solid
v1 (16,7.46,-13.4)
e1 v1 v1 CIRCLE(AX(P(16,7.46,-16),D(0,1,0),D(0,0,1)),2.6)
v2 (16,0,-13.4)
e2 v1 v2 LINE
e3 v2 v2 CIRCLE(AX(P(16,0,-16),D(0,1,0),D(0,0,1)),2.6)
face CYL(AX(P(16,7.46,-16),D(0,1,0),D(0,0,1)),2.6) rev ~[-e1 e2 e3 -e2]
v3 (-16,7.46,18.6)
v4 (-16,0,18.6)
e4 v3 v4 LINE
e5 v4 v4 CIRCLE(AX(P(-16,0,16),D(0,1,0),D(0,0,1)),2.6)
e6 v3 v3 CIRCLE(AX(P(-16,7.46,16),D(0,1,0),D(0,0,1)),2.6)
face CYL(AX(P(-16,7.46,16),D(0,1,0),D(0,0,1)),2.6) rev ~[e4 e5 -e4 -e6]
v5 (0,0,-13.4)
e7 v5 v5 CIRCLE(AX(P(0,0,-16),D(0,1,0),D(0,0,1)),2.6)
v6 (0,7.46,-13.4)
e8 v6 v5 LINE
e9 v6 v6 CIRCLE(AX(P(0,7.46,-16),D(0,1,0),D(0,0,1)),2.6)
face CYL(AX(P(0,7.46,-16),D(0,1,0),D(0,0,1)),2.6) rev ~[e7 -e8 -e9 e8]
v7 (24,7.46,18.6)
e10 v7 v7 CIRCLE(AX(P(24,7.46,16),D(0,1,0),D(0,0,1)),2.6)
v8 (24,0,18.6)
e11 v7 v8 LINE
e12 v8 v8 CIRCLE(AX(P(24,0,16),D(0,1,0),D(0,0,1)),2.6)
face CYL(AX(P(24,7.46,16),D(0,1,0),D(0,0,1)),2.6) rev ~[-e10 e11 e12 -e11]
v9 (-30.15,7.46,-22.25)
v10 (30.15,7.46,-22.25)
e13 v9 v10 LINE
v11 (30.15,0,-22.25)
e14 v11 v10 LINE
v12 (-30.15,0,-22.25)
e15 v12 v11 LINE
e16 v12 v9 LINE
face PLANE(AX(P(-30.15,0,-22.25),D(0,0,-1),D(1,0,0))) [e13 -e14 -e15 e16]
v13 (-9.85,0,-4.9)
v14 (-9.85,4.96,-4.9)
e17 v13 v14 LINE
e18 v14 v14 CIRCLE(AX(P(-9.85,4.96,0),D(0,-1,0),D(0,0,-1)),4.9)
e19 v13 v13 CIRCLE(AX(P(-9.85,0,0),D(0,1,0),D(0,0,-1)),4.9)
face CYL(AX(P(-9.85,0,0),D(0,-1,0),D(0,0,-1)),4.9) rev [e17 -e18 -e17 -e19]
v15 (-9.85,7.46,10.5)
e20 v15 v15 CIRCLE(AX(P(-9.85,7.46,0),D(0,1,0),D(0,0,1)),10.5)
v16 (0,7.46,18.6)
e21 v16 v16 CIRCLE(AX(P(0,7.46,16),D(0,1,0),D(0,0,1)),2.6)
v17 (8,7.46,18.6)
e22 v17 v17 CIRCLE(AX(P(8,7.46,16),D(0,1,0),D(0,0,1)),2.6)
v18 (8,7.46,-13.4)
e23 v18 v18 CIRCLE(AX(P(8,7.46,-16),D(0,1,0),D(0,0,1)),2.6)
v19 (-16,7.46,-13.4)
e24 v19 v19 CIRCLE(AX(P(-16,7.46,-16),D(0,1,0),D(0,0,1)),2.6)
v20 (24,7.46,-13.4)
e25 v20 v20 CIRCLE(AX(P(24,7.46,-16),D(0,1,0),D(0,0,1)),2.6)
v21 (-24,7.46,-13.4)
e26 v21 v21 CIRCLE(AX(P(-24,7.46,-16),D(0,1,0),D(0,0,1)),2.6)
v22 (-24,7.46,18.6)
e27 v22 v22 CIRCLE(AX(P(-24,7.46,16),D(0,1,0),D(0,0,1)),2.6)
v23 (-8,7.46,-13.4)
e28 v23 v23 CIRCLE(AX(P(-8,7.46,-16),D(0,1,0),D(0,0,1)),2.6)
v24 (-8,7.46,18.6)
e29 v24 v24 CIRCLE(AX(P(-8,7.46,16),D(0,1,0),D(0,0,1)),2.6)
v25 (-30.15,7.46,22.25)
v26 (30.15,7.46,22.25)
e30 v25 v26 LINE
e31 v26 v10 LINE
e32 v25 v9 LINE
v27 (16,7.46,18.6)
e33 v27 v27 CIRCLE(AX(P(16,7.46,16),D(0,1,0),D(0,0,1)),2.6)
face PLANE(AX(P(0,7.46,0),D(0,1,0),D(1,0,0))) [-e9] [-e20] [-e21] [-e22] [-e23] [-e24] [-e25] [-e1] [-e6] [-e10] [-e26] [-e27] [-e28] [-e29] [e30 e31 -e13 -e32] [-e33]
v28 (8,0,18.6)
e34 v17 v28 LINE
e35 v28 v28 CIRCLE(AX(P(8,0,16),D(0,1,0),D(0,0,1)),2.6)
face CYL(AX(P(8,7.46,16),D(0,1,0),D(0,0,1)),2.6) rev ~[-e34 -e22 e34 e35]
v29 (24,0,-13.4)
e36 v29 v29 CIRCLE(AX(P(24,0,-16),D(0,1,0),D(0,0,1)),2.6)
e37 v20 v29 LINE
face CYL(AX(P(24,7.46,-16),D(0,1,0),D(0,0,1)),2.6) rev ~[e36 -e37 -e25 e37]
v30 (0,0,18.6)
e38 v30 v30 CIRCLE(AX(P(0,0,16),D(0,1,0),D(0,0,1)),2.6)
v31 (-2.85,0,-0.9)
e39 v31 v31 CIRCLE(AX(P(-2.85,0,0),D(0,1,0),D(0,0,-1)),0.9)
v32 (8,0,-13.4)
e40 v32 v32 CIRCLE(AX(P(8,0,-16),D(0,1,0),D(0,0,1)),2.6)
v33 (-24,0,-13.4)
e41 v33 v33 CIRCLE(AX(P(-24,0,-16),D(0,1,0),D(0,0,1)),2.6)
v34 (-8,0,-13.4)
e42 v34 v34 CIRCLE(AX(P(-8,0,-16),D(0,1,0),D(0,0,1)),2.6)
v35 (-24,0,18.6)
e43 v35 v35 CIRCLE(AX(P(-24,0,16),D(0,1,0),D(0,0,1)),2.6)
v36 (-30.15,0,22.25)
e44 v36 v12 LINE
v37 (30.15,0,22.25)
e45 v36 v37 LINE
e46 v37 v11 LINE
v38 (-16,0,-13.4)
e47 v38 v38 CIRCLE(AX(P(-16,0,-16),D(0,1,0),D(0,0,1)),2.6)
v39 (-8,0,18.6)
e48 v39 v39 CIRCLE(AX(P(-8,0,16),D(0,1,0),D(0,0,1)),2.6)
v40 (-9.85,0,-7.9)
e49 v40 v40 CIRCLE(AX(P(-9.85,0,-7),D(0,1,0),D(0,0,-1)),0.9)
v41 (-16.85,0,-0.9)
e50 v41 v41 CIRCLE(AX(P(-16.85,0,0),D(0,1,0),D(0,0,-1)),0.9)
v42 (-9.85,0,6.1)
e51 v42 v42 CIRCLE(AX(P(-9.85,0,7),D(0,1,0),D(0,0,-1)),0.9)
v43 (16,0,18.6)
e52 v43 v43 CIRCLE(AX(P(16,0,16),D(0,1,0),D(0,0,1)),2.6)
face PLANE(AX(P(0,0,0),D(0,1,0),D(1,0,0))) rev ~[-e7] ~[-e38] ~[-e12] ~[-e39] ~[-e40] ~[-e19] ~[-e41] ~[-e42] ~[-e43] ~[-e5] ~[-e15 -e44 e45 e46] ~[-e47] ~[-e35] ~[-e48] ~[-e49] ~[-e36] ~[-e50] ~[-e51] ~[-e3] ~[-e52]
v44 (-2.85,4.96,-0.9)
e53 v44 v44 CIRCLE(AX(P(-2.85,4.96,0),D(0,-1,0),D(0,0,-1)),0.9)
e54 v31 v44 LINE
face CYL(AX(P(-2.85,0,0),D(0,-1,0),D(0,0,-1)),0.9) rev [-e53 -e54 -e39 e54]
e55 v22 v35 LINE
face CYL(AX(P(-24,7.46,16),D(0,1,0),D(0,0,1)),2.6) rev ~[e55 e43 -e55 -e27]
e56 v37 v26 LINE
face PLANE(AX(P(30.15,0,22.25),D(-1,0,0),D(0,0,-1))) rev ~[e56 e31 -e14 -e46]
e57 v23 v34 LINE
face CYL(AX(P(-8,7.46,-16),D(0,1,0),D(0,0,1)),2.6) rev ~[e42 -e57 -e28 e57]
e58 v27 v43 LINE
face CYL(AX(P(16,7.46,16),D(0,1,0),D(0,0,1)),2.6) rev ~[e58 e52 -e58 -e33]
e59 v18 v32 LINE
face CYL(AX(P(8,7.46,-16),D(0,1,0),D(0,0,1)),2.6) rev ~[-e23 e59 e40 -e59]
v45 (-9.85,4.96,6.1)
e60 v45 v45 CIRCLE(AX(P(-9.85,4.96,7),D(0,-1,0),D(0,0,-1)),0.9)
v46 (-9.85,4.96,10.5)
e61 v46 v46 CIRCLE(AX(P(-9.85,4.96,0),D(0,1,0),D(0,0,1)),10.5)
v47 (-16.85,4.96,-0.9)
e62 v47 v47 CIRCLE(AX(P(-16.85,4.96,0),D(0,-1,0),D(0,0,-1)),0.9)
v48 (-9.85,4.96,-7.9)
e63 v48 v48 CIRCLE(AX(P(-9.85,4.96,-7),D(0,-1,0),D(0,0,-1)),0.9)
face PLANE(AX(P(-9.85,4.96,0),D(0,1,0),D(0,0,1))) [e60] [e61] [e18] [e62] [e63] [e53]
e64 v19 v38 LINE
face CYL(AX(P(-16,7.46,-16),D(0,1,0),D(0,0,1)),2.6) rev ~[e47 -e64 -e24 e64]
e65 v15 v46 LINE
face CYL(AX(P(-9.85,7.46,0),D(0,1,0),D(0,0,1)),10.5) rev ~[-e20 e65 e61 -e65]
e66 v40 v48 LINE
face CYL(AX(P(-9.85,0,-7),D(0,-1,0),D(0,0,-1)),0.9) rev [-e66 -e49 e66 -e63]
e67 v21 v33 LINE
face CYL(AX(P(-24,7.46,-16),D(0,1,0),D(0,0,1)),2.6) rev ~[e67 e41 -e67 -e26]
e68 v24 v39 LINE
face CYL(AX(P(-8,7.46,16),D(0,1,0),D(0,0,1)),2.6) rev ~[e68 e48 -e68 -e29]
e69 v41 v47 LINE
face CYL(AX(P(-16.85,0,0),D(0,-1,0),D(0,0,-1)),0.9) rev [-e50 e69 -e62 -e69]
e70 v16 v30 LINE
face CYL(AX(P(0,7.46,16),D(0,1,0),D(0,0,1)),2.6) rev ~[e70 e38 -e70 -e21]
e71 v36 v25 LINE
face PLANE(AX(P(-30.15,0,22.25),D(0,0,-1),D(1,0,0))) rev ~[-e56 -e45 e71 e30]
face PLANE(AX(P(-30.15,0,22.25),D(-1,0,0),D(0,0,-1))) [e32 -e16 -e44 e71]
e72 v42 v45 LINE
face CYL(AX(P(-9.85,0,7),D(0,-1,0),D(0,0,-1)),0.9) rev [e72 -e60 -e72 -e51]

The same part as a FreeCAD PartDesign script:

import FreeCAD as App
import Part
import Sketcher
from FreeCAD import Vector


def add_polygon(sketch, points):
    """Adds a closed chain of lines whose ends are joined by coincident constraints."""
    first, n = sketch.GeometryCount, len(points)
    for a, b in zip(points, points[1:] + points[:1]):
        sketch.addGeometry(Part.LineSegment(App.Vector(*a, 0), App.Vector(*b, 0)), False)
    for i in range(n):
        sketch.addConstraint(Sketcher.Constraint("Coincident", first + i, 2, first + (i + 1) % n, 1))

doc = App.newDocument("Part")
body = doc.addObject("PartDesign::Body", "Body")

sketch1 = body.newObject("Sketcher::SketchObject", "Sketch")
sketch1.AttachmentSupport = (doc.getObject("XZ_Plane"), [""])
sketch1.MapMode = "FlatFace"
add_polygon(sketch1, [(-30.1, -22.2), (-30.1, 22.2), (30.1, 22.2), (30.1, -22.2)])
sketch1.addGeometry(Part.Circle(Vector(-9.8, 7, 0), Vector(0, 0, 1), 0.9), False)
sketch1.addGeometry(Part.Circle(Vector(-16.9, 0, 0), Vector(0, 0, 1), 0.9), False)
sketch1.addGeometry(Part.Circle(Vector(-9.8, 0, 0), Vector(0, 0, 1), 4.9), False)
sketch1.addGeometry(Part.Circle(Vector(-2.9, 0, 0), Vector(0, 0, 1), 0.9), False)
sketch1.addGeometry(Part.Circle(Vector(-9.8, -7, 0), Vector(0, 0, 1), 0.9), False)
sketch1.addConstraint(Sketcher.Constraint("Vertical", 0))
sketch1.addConstraint(Sketcher.Constraint("Horizontal", 1))
sketch1.addConstraint(Sketcher.Constraint("Vertical", 2))
sketch1.addConstraint(Sketcher.Constraint("Horizontal", 3))
sketch1.addConstraint(Sketcher.Constraint("Equal", 4, 5))
sketch1.addConstraint(Sketcher.Constraint("Equal", 5, 7))
sketch1.addConstraint(Sketcher.Constraint("Equal", 7, 8))
sketch1.addConstraint(Sketcher.Constraint("Symmetric", 0, 2, 2, 2, -1, 1))
sketch1.addConstraint(Sketcher.Constraint("Symmetric", 4, 3, 8, 3, -1))
sketch1.addConstraint(Sketcher.Constraint("PointOnObject", 5, 3, -1))
sketch1.addConstraint(Sketcher.Constraint("PointOnObject", 6, 3, -1))
sketch1.addConstraint(Sketcher.Constraint("PointOnObject", 7, 3, -1))
sketch1.addConstraint(Sketcher.Constraint("Vertical", 4, 3, 6, 3))
sketch1.addConstraint(Sketcher.Constraint("Diameter", 4, 1.8))
sketch1.addConstraint(Sketcher.Constraint("Diameter", 6, 9.8))
sketch1.addConstraint(Sketcher.Constraint("DistanceX", 1, 1, 1, 2, 60.3))
sketch1.addConstraint(Sketcher.Constraint("DistanceY", 0, 1, 0, 2, 44.5))
sketch1.addConstraint(Sketcher.Constraint("DistanceY", -1, 1, 4, 3, 7.0))
sketch1.addConstraint(Sketcher.Constraint("DistanceX", 5, 3, 4, 3, 7.0))
sketch1.addConstraint(Sketcher.Constraint("DistanceX", 6, 3, 7, 3, 7.0))
sketch1.addConstraint(Sketcher.Constraint("DistanceX", 7, 3, 1, 2, 33.0))
pad1 = body.newObject("PartDesign::Pad", "Pad")
pad1.Profile = sketch1
pad1.Length = 7.46
pad1.Reversed = True

sketch2 = body.newObject("Sketcher::SketchObject", "Sketch001")
sketch2.AttachmentSupport = (doc.getObject("XZ_Plane"), [""])
sketch2.MapMode = "FlatFace"
sketch2.AttachmentOffset = App.Placement(Vector(0, 0, -7.46), App.Rotation())
sketch2.addGeometry(Part.Circle(Vector(-10, 0, 0), Vector(0, 0, 1), 10), False)
sketch2.addConstraint(Sketcher.Constraint("PointOnObject", 0, 3, -1))
sketch2.addConstraint(Sketcher.Constraint("Diameter", 0, 21.0))
sketch2.addConstraint(Sketcher.Constraint("DistanceX", 0, 3, -1, 1, 9.85))
pocket1 = body.newObject("PartDesign::Pocket", "Pocket")
pocket1.Profile = sketch2
pocket1.Length = 2.5
pocket1.Reversed = True

sketch3 = body.newObject("Sketcher::SketchObject", "Sketch002")
sketch3.AttachmentSupport = (doc.getObject("XZ_Plane"), [""])
sketch3.MapMode = "FlatFace"
sketch3.AttachmentOffset = App.Placement(Vector(0, 0, -7.46), App.Rotation())
sketch3.addGeometry(Part.Circle(Vector(0, -16, 0), Vector(0, 0, 1), 2.6), False)
sketch3.addGeometry(Part.Circle(Vector(8, -16, 0), Vector(0, 0, 1), 2.6), False)
sketch3.addGeometry(Part.Circle(Vector(16, -16, 0), Vector(0, 0, 1), 2.6), False)
sketch3.addGeometry(Part.Circle(Vector(24, -16, 0), Vector(0, 0, 1), 2.6), False)
sketch3.addGeometry(Part.Circle(Vector(-24, -16, 0), Vector(0, 0, 1), 2.6), False)
sketch3.addGeometry(Part.Circle(Vector(-16, -16, 0), Vector(0, 0, 1), 2.6), False)
sketch3.addGeometry(Part.Circle(Vector(-8, -16, 0), Vector(0, 0, 1), 2.6), False)
sketch3.addGeometry(Part.Circle(Vector(-8, 16, 0), Vector(0, 0, 1), 2.6), False)
sketch3.addGeometry(Part.Circle(Vector(-16, 16, 0), Vector(0, 0, 1), 2.6), False)
sketch3.addGeometry(Part.Circle(Vector(-24, 16, 0), Vector(0, 0, 1), 2.6), False)
sketch3.addGeometry(Part.Circle(Vector(24, 16, 0), Vector(0, 0, 1), 2.6), False)
sketch3.addGeometry(Part.Circle(Vector(16, 16, 0), Vector(0, 0, 1), 2.6), False)
sketch3.addGeometry(Part.Circle(Vector(8, 16, 0), Vector(0, 0, 1), 2.6), False)
sketch3.addGeometry(Part.Circle(Vector(0, 16, 0), Vector(0, 0, 1), 2.6), False)
sketch3.addConstraint(Sketcher.Constraint("Equal", 0, 1))
sketch3.addConstraint(Sketcher.Constraint("Equal", 1, 2))
sketch3.addConstraint(Sketcher.Constraint("Equal", 2, 3))
sketch3.addConstraint(Sketcher.Constraint("Equal", 3, 4))
sketch3.addConstraint(Sketcher.Constraint("Equal", 4, 5))
sketch3.addConstraint(Sketcher.Constraint("Equal", 5, 6))
sketch3.addConstraint(Sketcher.Constraint("Equal", 6, 7))
sketch3.addConstraint(Sketcher.Constraint("Equal", 7, 8))
sketch3.addConstraint(Sketcher.Constraint("Equal", 8, 9))
sketch3.addConstraint(Sketcher.Constraint("Equal", 9, 10))
sketch3.addConstraint(Sketcher.Constraint("Equal", 10, 11))
sketch3.addConstraint(Sketcher.Constraint("Equal", 11, 12))
sketch3.addConstraint(Sketcher.Constraint("Equal", 12, 13))
sketch3.addConstraint(Sketcher.Constraint("Symmetric", 1, 3, 7, 3, -1, 1))
sketch3.addConstraint(Sketcher.Constraint("Symmetric", 2, 3, 8, 3, -1, 1))
sketch3.addConstraint(Sketcher.Constraint("Symmetric", 3, 3, 9, 3, -1, 1))
sketch3.addConstraint(Sketcher.Constraint("Symmetric", 4, 3, 10, 3, -1, 1))
sketch3.addConstraint(Sketcher.Constraint("Symmetric", 5, 3, 11, 3, -1, 1))
sketch3.addConstraint(Sketcher.Constraint("Symmetric", 6, 3, 12, 3, -1, 1))
sketch3.addConstraint(Sketcher.Constraint("Symmetric", 0, 3, 13, 3, -1, 1))
sketch3.addConstraint(Sketcher.Constraint("Symmetric", 3, 3, 4, 3, -2))
sketch3.addConstraint(Sketcher.Constraint("Symmetric", 2, 3, 5, 3, -2))
sketch3.addConstraint(Sketcher.Constraint("Symmetric", 1, 3, 6, 3, -2))
sketch3.addConstraint(Sketcher.Constraint("PointOnObject", 0, 3, -2))
sketch3.addConstraint(Sketcher.Constraint("Horizontal", 0, 3, 1, 3))
sketch3.addConstraint(Sketcher.Constraint("Horizontal", 1, 3, 2, 3))
sketch3.addConstraint(Sketcher.Constraint("Horizontal", 2, 3, 3, 3))
sketch3.addConstraint(Sketcher.Constraint("Diameter", 0, 5.2))
sketch3.addConstraint(Sketcher.Constraint("DistanceY", 0, 3, -1, 1, 16.0))
sketch3.addConstraint(Sketcher.Constraint("DistanceX", -1, 1, 1, 3, 8.0))
sketch3.addConstraint(Sketcher.Constraint("DistanceX", -1, 1, 2, 3, 16.0))
sketch3.addConstraint(Sketcher.Constraint("DistanceX", -1, 1, 3, 3, 24.0))
pocket2 = body.newObject("PartDesign::Pocket", "Pocket001")
pocket2.Profile = sketch3
pocket2.Type = "ThroughAll"
pocket2.Reversed = True

doc.recompute()
